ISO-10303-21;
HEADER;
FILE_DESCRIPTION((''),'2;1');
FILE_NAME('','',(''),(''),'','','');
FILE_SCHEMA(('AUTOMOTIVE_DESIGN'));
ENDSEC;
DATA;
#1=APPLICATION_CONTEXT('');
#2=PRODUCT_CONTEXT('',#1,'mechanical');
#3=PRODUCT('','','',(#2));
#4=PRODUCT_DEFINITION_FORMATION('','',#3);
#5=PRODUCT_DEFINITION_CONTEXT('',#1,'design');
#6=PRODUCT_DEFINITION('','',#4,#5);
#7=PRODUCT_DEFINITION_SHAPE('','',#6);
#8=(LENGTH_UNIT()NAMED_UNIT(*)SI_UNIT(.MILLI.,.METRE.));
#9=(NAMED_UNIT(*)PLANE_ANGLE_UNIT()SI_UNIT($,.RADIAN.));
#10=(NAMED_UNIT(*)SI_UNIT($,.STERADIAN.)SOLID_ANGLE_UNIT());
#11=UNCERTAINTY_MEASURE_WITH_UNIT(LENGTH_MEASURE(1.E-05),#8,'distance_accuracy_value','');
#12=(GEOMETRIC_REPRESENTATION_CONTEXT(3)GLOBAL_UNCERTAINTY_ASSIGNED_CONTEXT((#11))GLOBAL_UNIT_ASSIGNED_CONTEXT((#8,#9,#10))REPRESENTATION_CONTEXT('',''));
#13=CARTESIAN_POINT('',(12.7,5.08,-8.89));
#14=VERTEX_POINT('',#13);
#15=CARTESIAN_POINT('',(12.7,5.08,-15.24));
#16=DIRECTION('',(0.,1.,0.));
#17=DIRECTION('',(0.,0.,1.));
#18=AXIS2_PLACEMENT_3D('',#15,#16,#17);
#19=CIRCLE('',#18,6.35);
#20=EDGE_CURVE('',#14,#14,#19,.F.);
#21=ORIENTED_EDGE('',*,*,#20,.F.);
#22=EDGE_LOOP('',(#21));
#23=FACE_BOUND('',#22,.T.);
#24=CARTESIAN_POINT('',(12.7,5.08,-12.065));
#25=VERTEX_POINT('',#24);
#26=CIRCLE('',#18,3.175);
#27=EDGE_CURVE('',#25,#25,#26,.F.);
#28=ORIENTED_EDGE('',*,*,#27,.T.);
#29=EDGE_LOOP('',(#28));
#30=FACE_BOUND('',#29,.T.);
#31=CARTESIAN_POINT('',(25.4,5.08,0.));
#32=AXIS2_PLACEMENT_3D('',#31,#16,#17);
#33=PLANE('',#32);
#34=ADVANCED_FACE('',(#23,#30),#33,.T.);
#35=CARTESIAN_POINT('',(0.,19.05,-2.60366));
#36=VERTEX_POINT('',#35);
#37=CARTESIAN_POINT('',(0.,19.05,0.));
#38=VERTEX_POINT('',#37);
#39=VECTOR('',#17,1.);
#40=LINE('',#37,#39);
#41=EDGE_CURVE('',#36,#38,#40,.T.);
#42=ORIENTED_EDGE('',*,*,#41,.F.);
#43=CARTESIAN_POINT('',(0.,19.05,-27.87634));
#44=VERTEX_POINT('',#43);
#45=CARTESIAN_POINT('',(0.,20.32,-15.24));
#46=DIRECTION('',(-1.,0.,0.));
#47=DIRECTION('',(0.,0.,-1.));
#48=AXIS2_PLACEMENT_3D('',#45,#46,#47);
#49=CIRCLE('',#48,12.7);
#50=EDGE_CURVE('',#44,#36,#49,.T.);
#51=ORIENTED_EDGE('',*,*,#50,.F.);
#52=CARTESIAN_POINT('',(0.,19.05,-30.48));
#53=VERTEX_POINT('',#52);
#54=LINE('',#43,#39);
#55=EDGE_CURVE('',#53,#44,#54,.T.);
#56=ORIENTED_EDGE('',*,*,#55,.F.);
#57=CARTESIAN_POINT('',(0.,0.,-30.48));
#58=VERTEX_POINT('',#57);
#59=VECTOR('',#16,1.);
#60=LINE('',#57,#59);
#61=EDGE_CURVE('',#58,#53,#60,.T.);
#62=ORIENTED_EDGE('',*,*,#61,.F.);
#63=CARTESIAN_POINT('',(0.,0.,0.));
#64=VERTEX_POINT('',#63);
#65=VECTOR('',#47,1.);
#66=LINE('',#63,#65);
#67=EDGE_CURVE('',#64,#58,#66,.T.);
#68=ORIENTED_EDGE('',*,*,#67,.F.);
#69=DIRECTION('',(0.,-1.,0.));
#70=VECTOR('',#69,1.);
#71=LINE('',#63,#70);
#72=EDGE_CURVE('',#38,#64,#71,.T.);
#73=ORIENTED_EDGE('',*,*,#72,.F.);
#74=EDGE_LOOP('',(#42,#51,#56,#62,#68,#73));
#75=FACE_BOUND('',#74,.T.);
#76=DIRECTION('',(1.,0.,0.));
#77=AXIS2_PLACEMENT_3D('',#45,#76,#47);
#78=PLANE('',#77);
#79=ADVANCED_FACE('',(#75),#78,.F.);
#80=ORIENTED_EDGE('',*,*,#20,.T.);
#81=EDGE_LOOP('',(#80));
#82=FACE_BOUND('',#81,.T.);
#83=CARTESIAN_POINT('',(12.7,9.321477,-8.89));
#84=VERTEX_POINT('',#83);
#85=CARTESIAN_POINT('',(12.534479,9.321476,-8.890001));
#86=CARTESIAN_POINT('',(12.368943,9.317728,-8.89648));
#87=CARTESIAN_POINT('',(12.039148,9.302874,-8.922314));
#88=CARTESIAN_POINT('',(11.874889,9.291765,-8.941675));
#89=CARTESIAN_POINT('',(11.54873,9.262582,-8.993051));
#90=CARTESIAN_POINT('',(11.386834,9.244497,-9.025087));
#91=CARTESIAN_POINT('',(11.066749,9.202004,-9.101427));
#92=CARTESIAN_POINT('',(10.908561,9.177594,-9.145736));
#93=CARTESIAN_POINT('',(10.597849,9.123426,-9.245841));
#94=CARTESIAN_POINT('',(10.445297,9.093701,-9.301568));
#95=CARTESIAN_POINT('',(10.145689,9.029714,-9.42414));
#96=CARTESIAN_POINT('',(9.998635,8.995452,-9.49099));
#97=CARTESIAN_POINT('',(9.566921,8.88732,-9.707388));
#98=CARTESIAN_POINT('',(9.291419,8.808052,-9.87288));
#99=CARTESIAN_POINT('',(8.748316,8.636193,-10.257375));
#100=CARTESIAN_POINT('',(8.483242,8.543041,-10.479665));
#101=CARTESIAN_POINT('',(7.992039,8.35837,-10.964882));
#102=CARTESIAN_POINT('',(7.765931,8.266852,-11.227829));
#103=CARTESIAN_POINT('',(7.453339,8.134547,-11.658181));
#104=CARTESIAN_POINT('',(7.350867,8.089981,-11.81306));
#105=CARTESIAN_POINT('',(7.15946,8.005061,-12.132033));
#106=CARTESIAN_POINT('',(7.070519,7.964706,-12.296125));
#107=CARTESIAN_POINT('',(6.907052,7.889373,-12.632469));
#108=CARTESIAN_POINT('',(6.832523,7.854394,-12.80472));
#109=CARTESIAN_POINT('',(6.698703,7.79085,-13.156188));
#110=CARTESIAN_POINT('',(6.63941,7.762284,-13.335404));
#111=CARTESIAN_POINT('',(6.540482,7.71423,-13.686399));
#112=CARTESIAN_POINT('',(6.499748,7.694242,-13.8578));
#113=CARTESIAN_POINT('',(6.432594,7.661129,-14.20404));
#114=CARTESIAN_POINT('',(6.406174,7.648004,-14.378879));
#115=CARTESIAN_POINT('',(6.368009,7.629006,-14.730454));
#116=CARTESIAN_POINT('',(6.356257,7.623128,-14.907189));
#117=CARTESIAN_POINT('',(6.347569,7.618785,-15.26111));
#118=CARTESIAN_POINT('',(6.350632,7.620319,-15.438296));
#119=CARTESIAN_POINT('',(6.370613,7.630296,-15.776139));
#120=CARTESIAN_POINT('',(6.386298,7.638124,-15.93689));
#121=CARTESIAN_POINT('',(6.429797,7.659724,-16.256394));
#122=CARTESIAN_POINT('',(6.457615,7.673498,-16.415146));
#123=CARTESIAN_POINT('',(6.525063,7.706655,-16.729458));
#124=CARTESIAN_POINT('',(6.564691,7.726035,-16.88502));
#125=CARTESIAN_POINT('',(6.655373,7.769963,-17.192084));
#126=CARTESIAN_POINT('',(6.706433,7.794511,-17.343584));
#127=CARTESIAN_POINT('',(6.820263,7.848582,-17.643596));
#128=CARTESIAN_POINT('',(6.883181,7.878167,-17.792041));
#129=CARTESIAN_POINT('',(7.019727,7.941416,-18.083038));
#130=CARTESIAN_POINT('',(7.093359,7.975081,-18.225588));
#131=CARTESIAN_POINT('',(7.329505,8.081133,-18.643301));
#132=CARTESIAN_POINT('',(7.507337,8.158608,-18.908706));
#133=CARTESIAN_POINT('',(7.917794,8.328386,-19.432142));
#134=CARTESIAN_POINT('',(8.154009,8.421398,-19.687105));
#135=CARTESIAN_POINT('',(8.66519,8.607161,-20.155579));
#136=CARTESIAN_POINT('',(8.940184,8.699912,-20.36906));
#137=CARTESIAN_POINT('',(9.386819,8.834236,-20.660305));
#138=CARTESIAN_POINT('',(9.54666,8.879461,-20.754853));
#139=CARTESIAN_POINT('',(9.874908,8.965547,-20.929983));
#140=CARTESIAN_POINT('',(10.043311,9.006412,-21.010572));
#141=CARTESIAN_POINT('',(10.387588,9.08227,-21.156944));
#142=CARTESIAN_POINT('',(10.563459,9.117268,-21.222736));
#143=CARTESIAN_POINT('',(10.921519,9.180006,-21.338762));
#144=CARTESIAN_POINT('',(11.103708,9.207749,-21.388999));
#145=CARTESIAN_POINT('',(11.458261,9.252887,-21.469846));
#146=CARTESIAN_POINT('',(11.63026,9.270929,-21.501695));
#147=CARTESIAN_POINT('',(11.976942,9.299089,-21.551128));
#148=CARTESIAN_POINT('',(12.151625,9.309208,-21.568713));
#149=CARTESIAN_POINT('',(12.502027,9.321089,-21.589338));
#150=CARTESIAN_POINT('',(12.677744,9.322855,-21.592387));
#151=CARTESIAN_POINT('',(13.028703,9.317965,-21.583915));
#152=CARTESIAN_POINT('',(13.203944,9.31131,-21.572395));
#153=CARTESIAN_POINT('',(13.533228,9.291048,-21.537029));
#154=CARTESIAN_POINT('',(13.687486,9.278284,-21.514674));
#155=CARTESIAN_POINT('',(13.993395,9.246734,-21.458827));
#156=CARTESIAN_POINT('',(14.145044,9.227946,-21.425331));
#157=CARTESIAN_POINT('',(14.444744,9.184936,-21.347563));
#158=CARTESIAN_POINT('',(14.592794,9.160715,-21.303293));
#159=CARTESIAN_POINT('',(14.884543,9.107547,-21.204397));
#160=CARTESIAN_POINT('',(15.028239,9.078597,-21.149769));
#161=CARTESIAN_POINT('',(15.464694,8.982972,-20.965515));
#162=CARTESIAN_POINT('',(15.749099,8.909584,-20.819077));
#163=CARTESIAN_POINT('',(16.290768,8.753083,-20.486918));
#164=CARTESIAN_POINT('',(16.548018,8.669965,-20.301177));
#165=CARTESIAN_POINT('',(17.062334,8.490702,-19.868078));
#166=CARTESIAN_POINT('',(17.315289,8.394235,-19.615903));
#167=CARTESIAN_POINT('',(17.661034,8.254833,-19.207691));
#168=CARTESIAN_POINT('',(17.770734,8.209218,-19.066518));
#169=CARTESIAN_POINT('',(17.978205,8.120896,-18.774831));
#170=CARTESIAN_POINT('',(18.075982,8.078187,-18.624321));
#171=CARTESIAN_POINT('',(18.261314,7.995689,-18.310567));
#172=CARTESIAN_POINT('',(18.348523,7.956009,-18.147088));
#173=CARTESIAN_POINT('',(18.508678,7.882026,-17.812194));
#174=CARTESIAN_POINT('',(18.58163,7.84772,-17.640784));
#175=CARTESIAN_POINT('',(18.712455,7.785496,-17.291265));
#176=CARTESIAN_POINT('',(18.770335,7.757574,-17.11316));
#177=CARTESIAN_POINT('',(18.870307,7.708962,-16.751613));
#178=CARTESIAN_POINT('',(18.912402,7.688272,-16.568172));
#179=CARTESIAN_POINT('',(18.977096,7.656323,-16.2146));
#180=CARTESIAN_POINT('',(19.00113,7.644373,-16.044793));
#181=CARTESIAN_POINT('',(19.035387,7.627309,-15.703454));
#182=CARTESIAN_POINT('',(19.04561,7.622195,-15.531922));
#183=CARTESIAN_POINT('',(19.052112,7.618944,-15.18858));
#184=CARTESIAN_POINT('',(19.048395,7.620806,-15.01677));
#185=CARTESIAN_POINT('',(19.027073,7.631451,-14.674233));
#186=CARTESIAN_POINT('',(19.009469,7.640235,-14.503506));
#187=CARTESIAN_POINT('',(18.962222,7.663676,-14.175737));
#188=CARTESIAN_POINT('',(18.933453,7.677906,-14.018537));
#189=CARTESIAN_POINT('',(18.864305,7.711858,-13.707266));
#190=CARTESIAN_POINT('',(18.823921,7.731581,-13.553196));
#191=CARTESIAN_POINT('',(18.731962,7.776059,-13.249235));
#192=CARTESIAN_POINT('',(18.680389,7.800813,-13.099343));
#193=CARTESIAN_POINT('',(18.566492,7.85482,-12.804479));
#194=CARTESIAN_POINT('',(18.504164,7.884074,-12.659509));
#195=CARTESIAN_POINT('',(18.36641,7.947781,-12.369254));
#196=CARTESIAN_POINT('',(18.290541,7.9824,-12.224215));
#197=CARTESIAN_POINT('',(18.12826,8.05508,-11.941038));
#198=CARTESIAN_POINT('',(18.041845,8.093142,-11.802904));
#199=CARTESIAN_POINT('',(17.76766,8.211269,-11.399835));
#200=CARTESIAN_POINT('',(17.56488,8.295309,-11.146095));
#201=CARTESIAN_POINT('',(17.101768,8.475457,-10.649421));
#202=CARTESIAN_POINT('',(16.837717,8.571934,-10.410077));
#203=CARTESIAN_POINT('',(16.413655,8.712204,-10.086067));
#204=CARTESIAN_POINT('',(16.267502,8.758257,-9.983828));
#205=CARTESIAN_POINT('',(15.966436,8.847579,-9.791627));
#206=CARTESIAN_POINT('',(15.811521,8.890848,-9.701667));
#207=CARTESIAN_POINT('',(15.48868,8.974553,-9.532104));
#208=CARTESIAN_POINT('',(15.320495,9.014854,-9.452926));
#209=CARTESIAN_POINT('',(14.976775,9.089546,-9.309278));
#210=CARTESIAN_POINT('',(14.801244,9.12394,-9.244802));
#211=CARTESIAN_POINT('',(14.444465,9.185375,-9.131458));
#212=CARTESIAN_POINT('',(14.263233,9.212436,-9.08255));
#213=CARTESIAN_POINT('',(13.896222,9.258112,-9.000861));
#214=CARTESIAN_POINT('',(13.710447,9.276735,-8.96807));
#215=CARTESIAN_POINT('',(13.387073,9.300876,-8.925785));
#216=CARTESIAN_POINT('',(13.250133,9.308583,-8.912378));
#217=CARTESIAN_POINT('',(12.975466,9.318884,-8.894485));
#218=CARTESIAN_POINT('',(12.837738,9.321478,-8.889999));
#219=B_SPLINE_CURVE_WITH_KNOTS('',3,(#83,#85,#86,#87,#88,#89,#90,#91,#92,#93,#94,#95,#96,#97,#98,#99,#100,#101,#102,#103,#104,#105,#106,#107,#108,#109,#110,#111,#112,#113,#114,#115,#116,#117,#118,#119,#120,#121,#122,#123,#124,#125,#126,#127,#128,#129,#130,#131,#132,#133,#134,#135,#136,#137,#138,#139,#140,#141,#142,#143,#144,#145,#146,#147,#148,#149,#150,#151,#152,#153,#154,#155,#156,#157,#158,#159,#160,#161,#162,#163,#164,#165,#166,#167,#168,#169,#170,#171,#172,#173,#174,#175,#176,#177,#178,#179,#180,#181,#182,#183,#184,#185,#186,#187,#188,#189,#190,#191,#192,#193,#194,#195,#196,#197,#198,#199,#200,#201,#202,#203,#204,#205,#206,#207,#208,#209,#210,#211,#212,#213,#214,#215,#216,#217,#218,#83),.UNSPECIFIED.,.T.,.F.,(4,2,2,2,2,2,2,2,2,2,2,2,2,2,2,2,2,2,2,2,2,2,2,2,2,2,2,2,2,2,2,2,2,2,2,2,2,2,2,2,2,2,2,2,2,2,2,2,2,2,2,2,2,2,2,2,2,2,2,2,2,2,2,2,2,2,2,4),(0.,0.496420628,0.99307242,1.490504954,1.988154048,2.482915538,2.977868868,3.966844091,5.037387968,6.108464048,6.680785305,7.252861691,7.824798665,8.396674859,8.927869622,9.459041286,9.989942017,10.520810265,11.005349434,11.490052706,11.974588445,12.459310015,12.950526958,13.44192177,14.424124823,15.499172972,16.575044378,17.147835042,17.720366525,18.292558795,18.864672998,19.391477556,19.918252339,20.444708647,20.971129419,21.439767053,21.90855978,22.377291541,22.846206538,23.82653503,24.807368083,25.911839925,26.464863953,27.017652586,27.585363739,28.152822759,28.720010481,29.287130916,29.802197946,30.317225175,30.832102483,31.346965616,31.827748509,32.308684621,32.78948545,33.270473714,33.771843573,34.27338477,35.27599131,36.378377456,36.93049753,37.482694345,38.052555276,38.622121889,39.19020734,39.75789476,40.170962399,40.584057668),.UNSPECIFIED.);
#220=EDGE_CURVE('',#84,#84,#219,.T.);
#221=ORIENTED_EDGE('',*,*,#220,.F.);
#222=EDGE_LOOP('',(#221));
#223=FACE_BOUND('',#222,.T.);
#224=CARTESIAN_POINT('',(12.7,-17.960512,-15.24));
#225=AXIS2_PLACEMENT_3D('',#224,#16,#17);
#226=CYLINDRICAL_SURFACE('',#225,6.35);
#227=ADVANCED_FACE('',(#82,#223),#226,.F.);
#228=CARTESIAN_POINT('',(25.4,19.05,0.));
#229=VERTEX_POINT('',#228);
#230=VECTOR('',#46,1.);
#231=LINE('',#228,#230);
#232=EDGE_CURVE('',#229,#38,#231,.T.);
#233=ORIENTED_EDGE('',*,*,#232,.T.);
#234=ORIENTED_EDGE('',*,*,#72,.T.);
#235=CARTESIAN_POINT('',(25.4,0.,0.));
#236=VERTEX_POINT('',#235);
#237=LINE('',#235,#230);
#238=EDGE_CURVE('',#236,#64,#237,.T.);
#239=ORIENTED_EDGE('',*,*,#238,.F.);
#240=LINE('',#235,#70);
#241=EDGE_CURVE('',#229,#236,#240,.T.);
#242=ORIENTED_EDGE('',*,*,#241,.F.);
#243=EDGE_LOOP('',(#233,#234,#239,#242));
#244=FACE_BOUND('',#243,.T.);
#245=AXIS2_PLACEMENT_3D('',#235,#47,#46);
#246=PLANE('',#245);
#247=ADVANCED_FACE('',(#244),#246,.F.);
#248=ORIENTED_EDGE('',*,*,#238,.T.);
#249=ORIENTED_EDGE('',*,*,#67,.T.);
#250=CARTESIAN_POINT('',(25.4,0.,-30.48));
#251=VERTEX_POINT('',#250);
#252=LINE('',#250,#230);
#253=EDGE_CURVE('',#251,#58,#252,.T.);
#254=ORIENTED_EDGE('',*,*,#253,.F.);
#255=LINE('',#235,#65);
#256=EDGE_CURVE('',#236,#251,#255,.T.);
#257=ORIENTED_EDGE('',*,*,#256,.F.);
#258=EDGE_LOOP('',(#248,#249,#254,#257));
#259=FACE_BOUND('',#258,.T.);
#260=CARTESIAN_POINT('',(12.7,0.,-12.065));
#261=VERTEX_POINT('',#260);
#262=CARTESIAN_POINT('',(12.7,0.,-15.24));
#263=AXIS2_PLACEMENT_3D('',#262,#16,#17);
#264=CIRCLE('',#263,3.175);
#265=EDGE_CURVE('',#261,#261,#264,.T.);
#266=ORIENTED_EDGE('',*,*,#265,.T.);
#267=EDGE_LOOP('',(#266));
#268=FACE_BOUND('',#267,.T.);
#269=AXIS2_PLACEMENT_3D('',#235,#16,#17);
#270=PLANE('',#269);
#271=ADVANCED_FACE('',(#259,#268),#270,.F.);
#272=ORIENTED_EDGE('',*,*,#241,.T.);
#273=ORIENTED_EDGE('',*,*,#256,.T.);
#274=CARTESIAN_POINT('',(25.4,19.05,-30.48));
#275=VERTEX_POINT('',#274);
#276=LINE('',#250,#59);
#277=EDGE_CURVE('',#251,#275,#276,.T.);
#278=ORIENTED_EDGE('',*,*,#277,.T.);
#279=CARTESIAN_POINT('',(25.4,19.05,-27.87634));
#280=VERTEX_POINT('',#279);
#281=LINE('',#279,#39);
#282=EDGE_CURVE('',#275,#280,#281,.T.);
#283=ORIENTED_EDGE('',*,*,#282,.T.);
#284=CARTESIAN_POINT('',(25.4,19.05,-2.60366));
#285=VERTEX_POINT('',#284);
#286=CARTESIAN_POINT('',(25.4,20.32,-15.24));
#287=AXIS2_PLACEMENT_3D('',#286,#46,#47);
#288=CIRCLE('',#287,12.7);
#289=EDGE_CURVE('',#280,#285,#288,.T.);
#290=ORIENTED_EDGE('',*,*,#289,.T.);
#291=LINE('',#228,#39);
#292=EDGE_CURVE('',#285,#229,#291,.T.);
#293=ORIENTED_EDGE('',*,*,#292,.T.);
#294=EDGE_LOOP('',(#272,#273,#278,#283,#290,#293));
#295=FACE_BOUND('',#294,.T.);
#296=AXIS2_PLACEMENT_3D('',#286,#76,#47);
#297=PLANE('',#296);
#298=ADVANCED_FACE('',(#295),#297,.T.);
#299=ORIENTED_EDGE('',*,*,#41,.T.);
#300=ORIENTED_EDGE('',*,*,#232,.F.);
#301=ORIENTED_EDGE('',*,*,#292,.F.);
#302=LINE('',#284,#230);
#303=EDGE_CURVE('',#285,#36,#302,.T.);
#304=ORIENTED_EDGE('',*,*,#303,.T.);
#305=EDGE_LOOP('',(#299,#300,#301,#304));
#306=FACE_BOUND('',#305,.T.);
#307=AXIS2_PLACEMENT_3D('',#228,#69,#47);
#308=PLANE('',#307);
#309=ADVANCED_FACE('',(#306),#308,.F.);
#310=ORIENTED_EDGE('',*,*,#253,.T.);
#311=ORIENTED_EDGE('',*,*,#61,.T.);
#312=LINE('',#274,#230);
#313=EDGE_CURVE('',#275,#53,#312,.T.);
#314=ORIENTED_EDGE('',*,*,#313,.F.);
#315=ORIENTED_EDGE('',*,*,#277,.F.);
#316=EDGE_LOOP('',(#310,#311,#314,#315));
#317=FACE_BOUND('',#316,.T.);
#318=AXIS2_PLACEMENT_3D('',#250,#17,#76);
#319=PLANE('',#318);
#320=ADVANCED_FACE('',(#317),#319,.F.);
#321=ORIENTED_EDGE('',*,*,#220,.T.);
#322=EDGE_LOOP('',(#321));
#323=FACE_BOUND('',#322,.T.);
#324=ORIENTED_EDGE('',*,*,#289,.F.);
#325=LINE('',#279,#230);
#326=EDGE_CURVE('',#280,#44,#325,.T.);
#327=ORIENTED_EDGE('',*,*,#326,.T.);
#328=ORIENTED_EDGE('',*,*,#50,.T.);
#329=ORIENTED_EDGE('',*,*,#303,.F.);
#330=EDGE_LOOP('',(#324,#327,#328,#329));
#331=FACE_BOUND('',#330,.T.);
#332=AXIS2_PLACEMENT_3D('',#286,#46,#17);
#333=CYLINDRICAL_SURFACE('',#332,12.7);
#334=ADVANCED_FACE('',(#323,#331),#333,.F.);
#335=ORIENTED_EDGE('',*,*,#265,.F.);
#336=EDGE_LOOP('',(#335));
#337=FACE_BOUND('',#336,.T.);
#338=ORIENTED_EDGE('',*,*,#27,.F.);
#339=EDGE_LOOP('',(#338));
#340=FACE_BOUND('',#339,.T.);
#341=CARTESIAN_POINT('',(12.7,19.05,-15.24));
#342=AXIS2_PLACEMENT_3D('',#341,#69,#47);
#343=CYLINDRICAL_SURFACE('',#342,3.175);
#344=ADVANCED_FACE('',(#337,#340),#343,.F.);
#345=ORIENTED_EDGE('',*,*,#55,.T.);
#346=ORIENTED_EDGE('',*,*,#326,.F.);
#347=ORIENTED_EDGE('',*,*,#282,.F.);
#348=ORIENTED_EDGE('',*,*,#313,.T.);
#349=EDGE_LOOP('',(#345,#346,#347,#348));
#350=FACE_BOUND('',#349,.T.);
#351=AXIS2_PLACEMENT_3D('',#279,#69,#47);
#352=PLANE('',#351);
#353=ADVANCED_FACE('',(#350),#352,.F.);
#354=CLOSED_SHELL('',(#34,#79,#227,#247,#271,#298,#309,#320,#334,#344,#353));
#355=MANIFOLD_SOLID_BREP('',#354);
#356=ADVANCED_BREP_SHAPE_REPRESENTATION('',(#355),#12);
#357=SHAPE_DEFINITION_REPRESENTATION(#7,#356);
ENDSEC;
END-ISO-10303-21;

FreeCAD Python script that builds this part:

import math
import FreeCAD as App
import Part
import Sketcher
Q = App.Units.Quantity

doc = App.newDocument("Part")
body = doc.addObject("PartDesign::Body", "Body")

sketch1 = doc.addObject("Sketcher::SketchObject", "Sketch")
body.addObject(sketch1)
sketch1.AttachmentSupport = (doc.YZ_Plane, [""])
sketch1.MapMode = "FlatFace"
sketch1.addGeometry([
    Part.LineSegment(App.Vector(19.1, -30.5, 0), App.Vector(19.1, -27.9, 0)),
    Part.ArcOfCircle(Part.Circle(App.Vector(20.3, -15.2, 0), App.Vector(0, 0, 1), 12.7), math.radians(96), math.radians(264)),
    Part.LineSegment(App.Vector(19.1, -2.6, 0), App.Vector(19.1, 0, 0)),
    Part.LineSegment(App.Vector(19.1, 0, 0), App.Vector(0, 0, 0)),
    Part.LineSegment(App.Vector(0, 0, 0), App.Vector(0, -30.5, 0)),
    Part.LineSegment(App.Vector(0, -30.5, 0), App.Vector(19.1, -30.5, 0)),
], False)
sketch1.addConstraint([
    Sketcher.Constraint("Coincident", 0, 2, 1, 2),
    Sketcher.Constraint("Coincident", 1, 1, 2, 1),
    Sketcher.Constraint("Coincident", 2, 2, 3, 1),
    Sketcher.Constraint("Coincident", 3, 2, 4, 1),
    Sketcher.Constraint("Coincident", 4, 2, 5, 1),
    Sketcher.Constraint("Coincident", 5, 2, 0, 1),
    Sketcher.Constraint("Vertical", 0),
    Sketcher.Constraint("Vertical", 2),
    Sketcher.Constraint("Horizontal", 3),
    Sketcher.Constraint("Vertical", 4),
    Sketcher.Constraint("Horizontal", 5),
    Sketcher.Constraint("Coincident", 3, 2, -1, 1),
    Sketcher.Constraint("Vertical", 0, 2, 1, 1),
    Sketcher.Constraint("Equal", 0, 2),
    Sketcher.Constraint("Radius", 1, Q("0.5 in")),
    Sketcher.Constraint("DistanceY", 4, 2, 4, 1, Q("1.2 in")),
    Sketcher.Constraint("DistanceX", 3, 2, 3, 1, Q("0.75 in")),
    Sketcher.Constraint("DistanceX", -1, 1, 1, 3, Q("0.8 in")),
])
pad1 = doc.addObject("PartDesign::Pad", "Pad")
body.addObject(pad1)
pad1.Profile = sketch1
pad1.Length = Q("1 in")

sketch2 = doc.addObject("Sketcher::SketchObject", "Sketch001")
body.addObject(sketch2)
sketch2.AttachmentSupport = (doc.XZ_Plane, [""])
sketch2.MapMode = "FlatFace"
sketch2.addGeometry(Part.Circle(App.Vector(12.7, -15.2, 0), App.Vector(0, 0, 1), 3.2), False)
sketch2.addConstraint([
    Sketcher.Constraint("Diameter", 0, Q("0.25 in")),
    Sketcher.Constraint("DistanceX", -1, 1, 0, 3, Q("0.5 in")),
    Sketcher.Constraint("DistanceY", 0, 3, -1, 1, Q("0.6 in")),
])
pocket1 = doc.addObject("PartDesign::Pocket", "Pocket")
body.addObject(pocket1)
pocket1.Profile = sketch2
pocket1.Type = "ThroughAll"
pocket1.Midplane = True

sketch3 = doc.addObject("Sketcher::SketchObject", "Sketch002")
body.addObject(sketch3)
sketch3.AttachmentSupport = (doc.XZ_Plane, [""])
sketch3.MapMode = "FlatFace"
sketch3.AttachmentOffset = App.Placement(App.Vector(0, 0, -0.75 * 25.4), App.Rotation())
sketch3.addGeometry(Part.Circle(App.Vector(13, -15, 0), App.Vector(0, 0, 1), 6), False)
sketch3.addConstraint([
    Sketcher.Constraint("Diameter", 0, Q("0.5 in")),
    Sketcher.Constraint("DistanceX", -1, 1, 0, 3, Q("0.5 in")),
    Sketcher.Constraint("DistanceY", 0, 3, -1, 1, Q("0.6 in")),
])
pocket2 = doc.addObject("PartDesign::Pocket", "Pocket001")
body.addObject(pocket2)
pocket2.Profile = sketch3
pocket2.Length = Q("0.55 in")
pocket2.Reversed = True

doc.recompute()
